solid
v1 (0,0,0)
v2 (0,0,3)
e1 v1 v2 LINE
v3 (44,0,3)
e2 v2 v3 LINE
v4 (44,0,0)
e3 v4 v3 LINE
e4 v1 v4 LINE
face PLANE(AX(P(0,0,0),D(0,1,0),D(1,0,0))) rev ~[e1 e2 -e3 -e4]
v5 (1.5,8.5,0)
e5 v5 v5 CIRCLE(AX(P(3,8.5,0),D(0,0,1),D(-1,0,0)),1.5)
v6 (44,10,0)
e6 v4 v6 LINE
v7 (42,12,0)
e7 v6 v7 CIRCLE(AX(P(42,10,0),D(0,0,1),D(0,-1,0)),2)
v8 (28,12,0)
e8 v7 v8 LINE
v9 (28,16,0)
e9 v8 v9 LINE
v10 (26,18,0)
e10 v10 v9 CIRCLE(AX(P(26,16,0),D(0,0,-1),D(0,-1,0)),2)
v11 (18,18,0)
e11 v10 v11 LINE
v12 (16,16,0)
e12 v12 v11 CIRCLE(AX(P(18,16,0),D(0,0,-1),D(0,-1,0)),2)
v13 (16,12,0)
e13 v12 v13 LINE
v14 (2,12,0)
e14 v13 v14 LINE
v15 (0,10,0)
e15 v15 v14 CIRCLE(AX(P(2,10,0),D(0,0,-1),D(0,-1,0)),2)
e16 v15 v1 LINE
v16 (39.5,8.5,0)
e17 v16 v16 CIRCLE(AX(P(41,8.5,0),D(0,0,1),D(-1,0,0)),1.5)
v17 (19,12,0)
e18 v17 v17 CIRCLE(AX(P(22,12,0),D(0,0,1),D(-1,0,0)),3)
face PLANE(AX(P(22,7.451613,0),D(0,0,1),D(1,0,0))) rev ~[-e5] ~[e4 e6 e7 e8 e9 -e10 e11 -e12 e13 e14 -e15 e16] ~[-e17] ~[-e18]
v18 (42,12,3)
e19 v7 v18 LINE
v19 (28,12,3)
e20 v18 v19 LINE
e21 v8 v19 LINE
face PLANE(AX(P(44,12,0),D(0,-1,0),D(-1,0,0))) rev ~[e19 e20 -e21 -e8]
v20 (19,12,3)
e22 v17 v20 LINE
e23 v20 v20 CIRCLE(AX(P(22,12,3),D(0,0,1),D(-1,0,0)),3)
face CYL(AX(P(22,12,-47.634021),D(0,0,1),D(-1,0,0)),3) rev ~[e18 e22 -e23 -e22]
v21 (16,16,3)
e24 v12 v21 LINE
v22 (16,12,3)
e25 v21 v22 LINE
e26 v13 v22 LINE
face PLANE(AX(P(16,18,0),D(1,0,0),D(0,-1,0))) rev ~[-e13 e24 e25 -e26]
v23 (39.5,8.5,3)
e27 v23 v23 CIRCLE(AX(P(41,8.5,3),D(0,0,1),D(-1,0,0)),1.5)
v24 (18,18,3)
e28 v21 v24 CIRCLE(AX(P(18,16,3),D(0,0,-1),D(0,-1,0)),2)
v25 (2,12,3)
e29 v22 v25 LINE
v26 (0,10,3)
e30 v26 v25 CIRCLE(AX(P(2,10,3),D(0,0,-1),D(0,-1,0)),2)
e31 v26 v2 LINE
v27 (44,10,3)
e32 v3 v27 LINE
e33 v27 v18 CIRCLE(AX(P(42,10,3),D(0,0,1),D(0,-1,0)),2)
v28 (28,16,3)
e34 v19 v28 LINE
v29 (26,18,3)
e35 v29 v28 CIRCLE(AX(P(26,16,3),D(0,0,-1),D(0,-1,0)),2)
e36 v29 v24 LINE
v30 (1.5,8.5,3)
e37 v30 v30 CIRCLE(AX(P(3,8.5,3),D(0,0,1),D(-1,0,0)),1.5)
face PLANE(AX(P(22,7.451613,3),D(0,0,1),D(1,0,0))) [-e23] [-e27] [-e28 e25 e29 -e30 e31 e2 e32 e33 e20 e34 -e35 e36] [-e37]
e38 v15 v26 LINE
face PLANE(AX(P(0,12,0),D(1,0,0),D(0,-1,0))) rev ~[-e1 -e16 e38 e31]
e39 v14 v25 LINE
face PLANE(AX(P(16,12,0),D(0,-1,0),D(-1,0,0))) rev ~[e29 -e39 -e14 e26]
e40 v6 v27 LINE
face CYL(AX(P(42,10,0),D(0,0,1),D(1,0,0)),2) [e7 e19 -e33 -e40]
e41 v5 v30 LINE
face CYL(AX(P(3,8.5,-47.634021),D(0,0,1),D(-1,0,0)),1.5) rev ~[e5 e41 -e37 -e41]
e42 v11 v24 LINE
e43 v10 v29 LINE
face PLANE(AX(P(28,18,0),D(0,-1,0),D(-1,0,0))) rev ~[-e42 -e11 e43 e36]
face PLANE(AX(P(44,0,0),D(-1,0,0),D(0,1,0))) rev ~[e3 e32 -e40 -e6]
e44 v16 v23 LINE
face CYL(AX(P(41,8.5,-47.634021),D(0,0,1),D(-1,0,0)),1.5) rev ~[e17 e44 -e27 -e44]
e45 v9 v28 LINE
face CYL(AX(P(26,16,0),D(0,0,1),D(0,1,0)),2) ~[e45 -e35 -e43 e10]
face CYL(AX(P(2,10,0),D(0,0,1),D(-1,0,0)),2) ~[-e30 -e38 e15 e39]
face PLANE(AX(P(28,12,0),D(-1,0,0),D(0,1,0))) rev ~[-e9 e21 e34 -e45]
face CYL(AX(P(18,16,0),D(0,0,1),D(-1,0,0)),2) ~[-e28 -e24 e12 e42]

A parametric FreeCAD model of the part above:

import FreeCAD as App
import Part
import Sketcher

V = App.Vector


def edges_at(feature, points):
    """Names of the edges that pass closest to the given points."""
    edges = feature.Shape.Edges
    near = lambda p: min(range(len(edges)), key=lambda i: edges[i].distToShape(Part.Vertex(*p))[0])
    return sorted({f"Edge{near(p) + 1}" for p in points})


def add_polygon(sketch, points):
    """Adds a closed chain of lines whose ends are joined by coincident constraints."""
    first, n = sketch.GeometryCount, len(points)
    for a, b in zip(points, points[1:] + points[:1]):
        sketch.addGeometry(Part.LineSegment(App.Vector(*a, 0), App.Vector(*b, 0)), False)
    for i in range(n):
        sketch.addConstraint(Sketcher.Constraint("Coincident", first + i, 2, first + (i + 1) % n, 1))

doc = App.newDocument("Part")
body = doc.addObject("PartDesign::Body", "Body")

# Sketch on XY plane
sketch1 = body.newObject("Sketcher::SketchObject", "Sketch")
sketch1.AttachmentSupport = (doc.getObject("XY_Plane"), [""])
sketch1.MapMode = "FlatFace"
add_polygon(sketch1, [(0, 12), (0, 0), (44, 0), (44, 12), (28, 12), (28, 18), (16, 18), (16, 12)])  # lines 0-7
sketch1.addConstraint(Sketcher.Constraint("Vertical", 0))
sketch1.addConstraint(Sketcher.Constraint("Horizontal", 1))
sketch1.addConstraint(Sketcher.Constraint("Vertical", 2))
sketch1.addConstraint(Sketcher.Constraint("Horizontal", 3))
sketch1.addConstraint(Sketcher.Constraint("Vertical", 4))
sketch1.addConstraint(Sketcher.Constraint("Horizontal", 5))
sketch1.addConstraint(Sketcher.Constraint("Vertical", 6))
sketch1.addConstraint(Sketcher.Constraint("Horizontal", 7))
sketch1.addConstraint(Sketcher.Constraint("Coincident", 0, 2, -1, 1))
sketch1.addConstraint(Sketcher.Constraint("Horizontal", 3, 2, 6, 2))
sketch1.addConstraint(Sketcher.Constraint("Equal", 3, 7))
sketch1.addConstraint(Sketcher.Constraint("Equal", 5, 0))
sketch1.addConstraint(Sketcher.Constraint("DistanceX", 1, 1, 1, 2, 44.0))
sketch1.addConstraint(Sketcher.Constraint("DistanceX", 3, 2, 3, 1, 16.0))
sketch1.addConstraint(Sketcher.Constraint("DistanceY", 4, 1, 4, 2, 6.0))
pad1 = body.newObject("PartDesign::Pad", "Pad")
pad1.Profile = sketch1
pad1.Length = 3

# Sketch on XY plane
sketch2 = body.newObject("Sketcher::SketchObject", "Sketch001")
sketch2.AttachmentSupport = (doc.getObject("XY_Plane"), [""])
sketch2.MapMode = "FlatFace"
sketch2.addGeometry(Part.Circle(V(22, 12, 0), V(0, 0, 1), 3), False)
sketch2.addConstraint(Sketcher.Constraint("Diameter", 0, 6.0))
sketch2.addConstraint(Sketcher.Constraint("DistanceX", -1, 1, 0, 3, 22.0))
sketch2.addConstraint(Sketcher.Constraint("DistanceY", -1, 1, 0, 3, 12.0))
doc.recompute()
hole = body.newObject("PartDesign::Hole", "Hole")
hole.Profile = sketch2
hole.ThreadType = "None"
hole.Diameter = 6
hole.DepthType = "ThroughAll"
hole.Reversed = True

# Sketch on XY plane
sketch3 = body.newObject("Sketcher::SketchObject", "Sketch002")
sketch3.AttachmentSupport = (doc.getObject("XY_Plane"), [""])
sketch3.MapMode = "FlatFace"
sketch3.addGeometry(Part.Circle(V(3, 8.5, 0), V(0, 0, 1), 1.5), False)
sketch3.addGeometry(Part.Circle(V(41, 8.5, 0), V(0, 0, 1), 1.5), False)
sketch3.addConstraint(Sketcher.Constraint("Equal", 0, 1))
sketch3.addConstraint(Sketcher.Constraint("Horizontal", 0, 3, 1, 3))
sketch3.addConstraint(Sketcher.Constraint("Diameter", 0, 3.0))
sketch3.addConstraint(Sketcher.Constraint("DistanceX", -1, 1, 0, 3, 3.0))
sketch3.addConstraint(Sketcher.Constraint("DistanceX", -1, 1, 1, 3, 41.0))
sketch3.addConstraint(Sketcher.Constraint("DistanceY", -1, 1, 0, 3, 8.5))
doc.recompute()
hole2 = body.newObject("PartDesign::Hole", "Hole001")
hole2.Profile = sketch3
hole2.ThreadType = "None"
hole2.Diameter = 3
hole2.DepthType = "ThroughAll"
hole2.Reversed = True
doc.recompute()

fillet = body.newObject("PartDesign::Fillet", "Fillet")
fillet.Base = (hole2, edges_at(hole2, [
    (28, 18, 1.5),
    (16, 18, 1.5),
    (44, 12, 1.5),
    (0, 12, 1.5),
]))
fillet.Radius = 2

doc.recompute()
